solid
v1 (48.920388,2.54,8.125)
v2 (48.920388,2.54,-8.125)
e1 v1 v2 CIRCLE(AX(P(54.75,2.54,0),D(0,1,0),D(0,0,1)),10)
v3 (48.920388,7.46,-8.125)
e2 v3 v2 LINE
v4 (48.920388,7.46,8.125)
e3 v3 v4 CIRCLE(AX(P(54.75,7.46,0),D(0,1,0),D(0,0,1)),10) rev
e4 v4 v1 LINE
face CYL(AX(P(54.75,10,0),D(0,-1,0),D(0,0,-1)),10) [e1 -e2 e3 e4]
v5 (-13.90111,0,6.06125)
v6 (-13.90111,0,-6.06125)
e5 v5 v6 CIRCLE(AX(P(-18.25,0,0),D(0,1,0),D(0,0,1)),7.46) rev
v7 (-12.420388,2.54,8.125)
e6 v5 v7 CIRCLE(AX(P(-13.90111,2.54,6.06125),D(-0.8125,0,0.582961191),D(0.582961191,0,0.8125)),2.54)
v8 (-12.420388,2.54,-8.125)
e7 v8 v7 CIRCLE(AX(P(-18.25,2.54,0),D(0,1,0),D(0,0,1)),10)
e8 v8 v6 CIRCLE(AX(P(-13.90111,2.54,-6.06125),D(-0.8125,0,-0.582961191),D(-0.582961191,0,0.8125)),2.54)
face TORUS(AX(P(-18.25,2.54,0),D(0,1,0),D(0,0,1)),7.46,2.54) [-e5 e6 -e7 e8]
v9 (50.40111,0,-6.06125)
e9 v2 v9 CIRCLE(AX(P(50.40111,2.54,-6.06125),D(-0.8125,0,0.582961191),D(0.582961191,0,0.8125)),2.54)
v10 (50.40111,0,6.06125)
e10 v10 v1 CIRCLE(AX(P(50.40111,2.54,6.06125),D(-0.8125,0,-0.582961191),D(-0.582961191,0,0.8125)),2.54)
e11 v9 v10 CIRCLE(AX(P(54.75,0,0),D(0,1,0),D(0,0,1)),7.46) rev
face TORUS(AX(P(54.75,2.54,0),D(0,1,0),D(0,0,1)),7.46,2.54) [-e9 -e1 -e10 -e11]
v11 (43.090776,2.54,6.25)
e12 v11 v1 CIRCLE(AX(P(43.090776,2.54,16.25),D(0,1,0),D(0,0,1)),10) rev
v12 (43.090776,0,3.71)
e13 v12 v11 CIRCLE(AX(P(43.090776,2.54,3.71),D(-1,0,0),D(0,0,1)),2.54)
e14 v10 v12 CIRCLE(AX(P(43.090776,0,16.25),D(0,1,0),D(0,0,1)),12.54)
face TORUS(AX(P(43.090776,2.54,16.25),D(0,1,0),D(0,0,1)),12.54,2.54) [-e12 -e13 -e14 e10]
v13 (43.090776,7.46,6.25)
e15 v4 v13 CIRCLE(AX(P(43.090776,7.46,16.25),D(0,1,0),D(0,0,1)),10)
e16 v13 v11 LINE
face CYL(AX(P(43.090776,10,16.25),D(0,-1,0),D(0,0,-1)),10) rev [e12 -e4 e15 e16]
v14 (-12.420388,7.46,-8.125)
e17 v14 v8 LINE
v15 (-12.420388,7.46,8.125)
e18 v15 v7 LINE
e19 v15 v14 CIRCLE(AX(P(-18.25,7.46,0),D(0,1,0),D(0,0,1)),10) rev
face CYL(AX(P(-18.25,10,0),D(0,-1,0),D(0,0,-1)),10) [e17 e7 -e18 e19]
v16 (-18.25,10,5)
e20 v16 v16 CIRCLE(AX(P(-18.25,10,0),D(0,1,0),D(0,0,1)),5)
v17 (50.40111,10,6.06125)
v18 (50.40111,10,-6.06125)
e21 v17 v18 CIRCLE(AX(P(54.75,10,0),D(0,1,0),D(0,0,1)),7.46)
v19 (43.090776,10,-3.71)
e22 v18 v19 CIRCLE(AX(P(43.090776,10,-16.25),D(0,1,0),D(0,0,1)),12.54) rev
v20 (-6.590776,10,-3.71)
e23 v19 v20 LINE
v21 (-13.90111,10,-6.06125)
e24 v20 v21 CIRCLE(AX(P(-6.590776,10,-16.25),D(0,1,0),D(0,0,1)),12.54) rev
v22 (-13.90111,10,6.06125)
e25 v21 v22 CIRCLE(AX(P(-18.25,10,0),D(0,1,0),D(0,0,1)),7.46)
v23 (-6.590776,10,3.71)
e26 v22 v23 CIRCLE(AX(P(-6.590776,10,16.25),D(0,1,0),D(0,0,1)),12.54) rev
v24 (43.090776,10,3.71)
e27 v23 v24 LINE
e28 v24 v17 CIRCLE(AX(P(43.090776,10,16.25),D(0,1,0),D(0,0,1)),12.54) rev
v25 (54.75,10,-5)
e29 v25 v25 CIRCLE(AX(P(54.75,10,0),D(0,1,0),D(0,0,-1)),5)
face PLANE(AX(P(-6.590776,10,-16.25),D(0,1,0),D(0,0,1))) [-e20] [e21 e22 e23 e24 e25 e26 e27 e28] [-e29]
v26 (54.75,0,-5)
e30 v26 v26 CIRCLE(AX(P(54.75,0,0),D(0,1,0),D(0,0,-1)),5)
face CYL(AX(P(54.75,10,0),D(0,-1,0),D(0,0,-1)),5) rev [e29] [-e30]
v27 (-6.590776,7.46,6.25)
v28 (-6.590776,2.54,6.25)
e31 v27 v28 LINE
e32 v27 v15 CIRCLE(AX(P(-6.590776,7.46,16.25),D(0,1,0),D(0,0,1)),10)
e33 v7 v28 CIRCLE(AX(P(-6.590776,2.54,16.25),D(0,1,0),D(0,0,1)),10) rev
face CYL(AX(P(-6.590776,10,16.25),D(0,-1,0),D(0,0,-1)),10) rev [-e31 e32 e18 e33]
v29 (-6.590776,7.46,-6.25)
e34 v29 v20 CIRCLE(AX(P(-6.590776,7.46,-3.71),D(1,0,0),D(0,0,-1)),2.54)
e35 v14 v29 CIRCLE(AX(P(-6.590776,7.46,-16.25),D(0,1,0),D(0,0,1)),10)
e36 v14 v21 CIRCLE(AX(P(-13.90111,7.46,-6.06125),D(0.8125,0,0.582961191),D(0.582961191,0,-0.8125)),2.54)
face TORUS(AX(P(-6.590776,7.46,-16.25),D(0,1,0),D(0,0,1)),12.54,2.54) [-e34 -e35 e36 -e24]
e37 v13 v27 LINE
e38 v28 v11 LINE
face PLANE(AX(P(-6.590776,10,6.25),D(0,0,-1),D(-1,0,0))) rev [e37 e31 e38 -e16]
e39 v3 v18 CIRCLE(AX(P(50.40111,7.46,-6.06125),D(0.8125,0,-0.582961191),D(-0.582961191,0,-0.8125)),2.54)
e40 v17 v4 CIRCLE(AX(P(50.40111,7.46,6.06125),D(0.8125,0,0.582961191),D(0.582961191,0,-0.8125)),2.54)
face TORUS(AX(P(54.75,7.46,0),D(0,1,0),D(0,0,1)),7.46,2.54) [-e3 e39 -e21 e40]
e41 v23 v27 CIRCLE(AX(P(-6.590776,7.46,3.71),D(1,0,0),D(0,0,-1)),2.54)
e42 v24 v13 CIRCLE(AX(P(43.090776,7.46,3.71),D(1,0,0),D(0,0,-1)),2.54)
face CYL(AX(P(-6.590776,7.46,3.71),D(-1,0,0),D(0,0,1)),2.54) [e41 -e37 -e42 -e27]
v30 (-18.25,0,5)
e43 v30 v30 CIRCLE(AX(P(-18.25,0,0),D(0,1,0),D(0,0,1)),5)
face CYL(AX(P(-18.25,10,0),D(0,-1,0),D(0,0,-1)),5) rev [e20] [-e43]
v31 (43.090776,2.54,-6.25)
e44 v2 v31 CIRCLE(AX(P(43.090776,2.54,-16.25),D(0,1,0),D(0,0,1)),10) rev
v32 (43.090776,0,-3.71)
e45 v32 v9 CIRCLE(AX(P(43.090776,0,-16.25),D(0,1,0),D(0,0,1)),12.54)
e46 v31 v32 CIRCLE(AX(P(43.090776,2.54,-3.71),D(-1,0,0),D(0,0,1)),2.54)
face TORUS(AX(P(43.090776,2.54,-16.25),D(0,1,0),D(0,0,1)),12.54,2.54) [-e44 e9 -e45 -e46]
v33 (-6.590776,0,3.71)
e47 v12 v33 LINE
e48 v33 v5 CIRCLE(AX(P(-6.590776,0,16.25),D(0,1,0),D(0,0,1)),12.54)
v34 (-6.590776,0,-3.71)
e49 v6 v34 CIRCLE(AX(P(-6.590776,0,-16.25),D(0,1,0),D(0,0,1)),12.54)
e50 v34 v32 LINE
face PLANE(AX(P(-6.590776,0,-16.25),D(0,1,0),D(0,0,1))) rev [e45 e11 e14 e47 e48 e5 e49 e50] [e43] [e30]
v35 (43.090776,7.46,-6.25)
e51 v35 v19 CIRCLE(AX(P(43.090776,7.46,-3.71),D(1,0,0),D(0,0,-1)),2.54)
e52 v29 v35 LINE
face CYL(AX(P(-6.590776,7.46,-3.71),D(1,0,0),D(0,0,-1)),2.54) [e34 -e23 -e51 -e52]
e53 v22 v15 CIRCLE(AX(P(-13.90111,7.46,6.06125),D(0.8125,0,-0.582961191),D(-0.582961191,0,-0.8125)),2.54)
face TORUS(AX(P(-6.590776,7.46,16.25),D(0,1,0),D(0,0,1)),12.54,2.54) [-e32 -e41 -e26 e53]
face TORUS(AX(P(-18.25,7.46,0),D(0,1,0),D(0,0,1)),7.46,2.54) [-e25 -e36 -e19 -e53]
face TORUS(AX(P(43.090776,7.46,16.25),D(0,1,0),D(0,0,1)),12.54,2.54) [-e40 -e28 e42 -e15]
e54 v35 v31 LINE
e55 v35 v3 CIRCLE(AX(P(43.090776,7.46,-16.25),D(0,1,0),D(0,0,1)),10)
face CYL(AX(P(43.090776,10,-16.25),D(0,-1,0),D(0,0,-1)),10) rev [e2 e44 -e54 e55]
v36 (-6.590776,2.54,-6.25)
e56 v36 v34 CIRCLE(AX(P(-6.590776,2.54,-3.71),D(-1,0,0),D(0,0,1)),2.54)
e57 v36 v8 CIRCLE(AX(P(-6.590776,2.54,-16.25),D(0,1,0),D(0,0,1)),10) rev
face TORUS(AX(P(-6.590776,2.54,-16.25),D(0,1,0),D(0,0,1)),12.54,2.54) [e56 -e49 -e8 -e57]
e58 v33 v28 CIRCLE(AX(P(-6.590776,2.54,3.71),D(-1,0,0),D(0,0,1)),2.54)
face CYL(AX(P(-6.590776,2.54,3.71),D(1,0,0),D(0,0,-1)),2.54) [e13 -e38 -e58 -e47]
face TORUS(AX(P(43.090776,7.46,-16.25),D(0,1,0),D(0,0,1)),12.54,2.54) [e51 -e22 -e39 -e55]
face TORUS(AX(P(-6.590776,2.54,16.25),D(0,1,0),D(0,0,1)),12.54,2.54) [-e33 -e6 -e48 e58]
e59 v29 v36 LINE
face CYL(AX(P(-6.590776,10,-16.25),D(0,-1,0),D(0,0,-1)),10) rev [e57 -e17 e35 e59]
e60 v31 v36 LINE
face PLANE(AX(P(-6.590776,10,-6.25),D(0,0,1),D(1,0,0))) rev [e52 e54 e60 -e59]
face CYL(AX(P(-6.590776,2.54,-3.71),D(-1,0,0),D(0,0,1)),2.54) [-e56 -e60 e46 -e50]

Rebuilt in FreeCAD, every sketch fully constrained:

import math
import FreeCAD as App
import Part
import Sketcher
Q = App.Units.Quantity


def edges_at(feature, points):
    """Names of the edges that pass closest to the given points."""
    edges = feature.Shape.Edges
    near = lambda p: min(range(len(edges)), key=lambda i: edges[i].distToShape(Part.Vertex(*p))[0])
    return sorted({f"Edge{near(p) + 1}" for p in points})

doc = App.newDocument("Part")
params = doc.addObject("Spreadsheet::Sheet", "Params")
for row, (alias, value) in enumerate([
    ("sketch1_diameter", "10 mm"),
    ("sketch1_radius", "10 mm"),
    ("pad1_length", "10 mm"),
    ("fillet_radius", "2.54 mm"),
], start=1):
    params.set(f"A{row}", alias)
    params.set(f"B{row}", "=" + value)
    params.setAlias(f"B{row}", alias)

body = doc.addObject("PartDesign::Body", "Body")

# Sketch on XZ plane
sketch1 = doc.addObject("Sketcher::SketchObject", "Sketch")
body.addObject(sketch1)
sketch1.AttachmentSupport = (doc.XZ_Plane, [""])
sketch1.MapMode = "FlatFace"
sketch1.addGeometry([
    Part.LineSegment(App.Vector(-6.590776, 6.25, 0), App.Vector(43.090776, 6.25, 0)),  # 0
    Part.ArcOfCircle(Part.Circle(App.Vector(43.090776, 16.25, 0), App.Vector(0, 0, 1), 10), math.radians(-90), math.radians(-54.340912)),  # 1
    Part.ArcOfCircle(Part.Circle(App.Vector(54.75, 0, 0), App.Vector(0, 0, 1), 10), math.radians(-125.659088), math.radians(125.659088)),  # 2
    Part.ArcOfCircle(Part.Circle(App.Vector(43.090776, -16.25, 0), App.Vector(0, 0, 1), 10), math.radians(54.340912), math.radians(90)),  # 3
    Part.LineSegment(App.Vector(43.090776, -6.25, 0), App.Vector(-6.590776, -6.25, 0)),  # 4
    Part.ArcOfCircle(Part.Circle(App.Vector(-6.590776, -16.25, 0), App.Vector(0, 0, 1), 10), math.radians(90), math.radians(125.659088)),  # 5
    Part.ArcOfCircle(Part.Circle(App.Vector(-18.25, 0, 0), App.Vector(0, 0, 1), 10), math.radians(54.340912), math.radians(305.659088)),  # 6
    Part.ArcOfCircle(Part.Circle(App.Vector(-6.590776, 16.25, 0), App.Vector(0, 0, 1), 10), math.radians(-125.659088), math.radians(-90)),  # 7
    Part.Circle(App.Vector(-18.25, 0, 0), App.Vector(0, 0, 1), 5),  # 8
    Part.Circle(App.Vector(54.75, 0, 0), App.Vector(0, 0, 1), 5),  # 9
], False)
sketch1.addConstraint([
    Sketcher.Constraint("Tangent", 0, 2, 1, 1),
    Sketcher.Constraint("Tangent", 1, 2, 2, 2),
    Sketcher.Constraint("Tangent", 2, 1, 3, 1),
    Sketcher.Constraint("Tangent", 3, 2, 4, 1),
    Sketcher.Constraint("Tangent", 4, 2, 5, 1),
    Sketcher.Constraint("Tangent", 5, 2, 6, 2),
    Sketcher.Constraint("Tangent", 6, 1, 7, 1),
    Sketcher.Constraint("Tangent", 7, 2, 0, 1),
    Sketcher.Constraint("Horizontal", 0),
    Sketcher.Constraint("Horizontal", 4),
    Sketcher.Constraint("Coincident", 8, 3, 6, 3),
    Sketcher.Constraint("Coincident", 9, 3, 2, 3),
    Sketcher.Constraint("Equal", 1, 2),
    Sketcher.Constraint("Equal", 2, 3),
    Sketcher.Constraint("Equal", 3, 5),
    Sketcher.Constraint("Equal", 5, 6),
    Sketcher.Constraint("Equal", 6, 7),
    Sketcher.Constraint("Equal", 8, 9),
    Sketcher.Constraint("Symmetric", 1, 3, 3, 3, -1),
    Sketcher.Constraint("PointOnObject", 6, 3, -1),
    Sketcher.Constraint("Diameter", 8, Q("10 mm")),
    Sketcher.Constraint("Radius", 1, Q("10 mm")),
    Sketcher.Constraint("DistanceX", 6, 3, 2, 3, Q("73 mm")),
    Sketcher.Constraint("DistanceY", 3, 3, 1, 3, Q("32.5 mm")),
    Sketcher.Constraint("DistanceX", -1, 1, 2, 3, Q("54.75 mm")),
])
sketch1.setExpression("Constraints[20]", "Params.sketch1_diameter")
sketch1.setExpression("Constraints[21]", "Params.sketch1_radius")
pad1 = doc.addObject("PartDesign::Pad", "Pad")
body.addObject(pad1)
pad1.Profile = sketch1
pad1.setExpression("Length", "Params.pad1_length")
pad1.Reversed = True
doc.recompute()

fillet = doc.addObject("PartDesign::Fillet", "Fillet")
body.addObject(fillet)
fillet.Base = (pad1, edges_at(pad1, [
    (-9.653, 10, 6.73),
    (-28.25, 0, 0),
    (-9.653, 0, -6.73),
    (18.25, 10, 6.25),
    (46.153, 10, 6.73),
    (64.75, 10, 0),
    (46.153, 10, -6.73),
    (18.25, 10, -6.25),
    (-9.653, 10, -6.73),
    (-28.25, 10, 0),
    (18.25, 0, -6.25),
    (46.153, 0, -6.73),
    (64.75, 0, 0),
    (46.153, 0, 6.73),
    (18.25, 0, 6.25),
    (-9.653, 0, 6.73),
]))
fillet.setExpression("Radius", "Params.fillet_radius")

doc.recompute()
